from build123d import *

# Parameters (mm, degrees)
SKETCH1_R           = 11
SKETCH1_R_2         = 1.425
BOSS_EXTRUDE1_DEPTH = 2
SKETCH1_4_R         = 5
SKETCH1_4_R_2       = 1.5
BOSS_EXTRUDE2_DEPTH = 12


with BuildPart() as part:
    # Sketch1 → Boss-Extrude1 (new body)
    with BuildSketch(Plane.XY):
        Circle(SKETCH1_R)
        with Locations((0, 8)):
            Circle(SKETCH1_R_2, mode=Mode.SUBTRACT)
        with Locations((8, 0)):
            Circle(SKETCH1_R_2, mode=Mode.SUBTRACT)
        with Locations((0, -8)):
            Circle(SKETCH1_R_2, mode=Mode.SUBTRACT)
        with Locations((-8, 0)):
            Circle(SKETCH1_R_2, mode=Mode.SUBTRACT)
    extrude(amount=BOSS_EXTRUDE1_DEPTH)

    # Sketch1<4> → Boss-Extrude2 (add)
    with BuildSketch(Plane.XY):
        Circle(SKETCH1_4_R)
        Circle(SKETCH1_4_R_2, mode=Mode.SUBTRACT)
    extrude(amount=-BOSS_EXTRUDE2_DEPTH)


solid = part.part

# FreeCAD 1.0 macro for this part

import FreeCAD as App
import Part
import Sketcher

V = App.Vector

doc = App.newDocument("Part")
params = doc.addObject("Spreadsheet::Sheet", "Params")
for row, (alias, value) in enumerate([
    ("sketch1_diameter", "22 mm"),
    ("sketch1_diameter2", "2.85 mm"),
    ("pad1_length", "2 mm"),
    ("sketch2_diameter", "10 mm"),
    ("sketch2_diameter2", "3 mm"),
    ("pad2_length", "12 mm"),
], start=1):
    params.set(f"A{row}", alias)
    params.set(f"B{row}", "=" + value)
    params.setAlias(f"B{row}", alias)

body = doc.addObject("PartDesign::Body", "Body")

# Sketch on XY plane
sketch1 = doc.addObject("Sketcher::SketchObject", "Sketch")
body.addObject(sketch1)
sketch1.AttachmentSupport = (doc.XY_Plane, [""])
sketch1.MapMode = "FlatFace"
sketch1.addGeometry([
    Part.Circle(V(0, 0, 0), V(0, 0, 1), 11),  # 0
    Part.Circle(V(0, -8, 0), V(0, 0, 1), 1.4),  # 1
    Part.Circle(V(-8, 0, 0), V(0, 0, 1), 1.4),  # 2
    Part.Circle(V(8, 0, 0), V(0, 0, 1), 1.4),  # 3
    Part.Circle(V(0, 8, 0), V(0, 0, 1), 1.4),  # 4
], False)
sketch1.addConstraint([
    Sketcher.Constraint("Coincident", 0, 3, -1, 1),
    Sketcher.Constraint("Equal", 1, 2),
    Sketcher.Constraint("Equal", 2, 3),
    Sketcher.Constraint("Equal", 3, 4),
    Sketcher.Constraint("Symmetric", 2, 3, 3, 3, -1, 1),
    Sketcher.Constraint("Symmetric", 1, 3, 4, 3, -1, 1),
    Sketcher.Constraint("PointOnObject", 1, 3, -2),
    Sketcher.Constraint("PointOnObject", 2, 3, -1),
    Sketcher.Constraint("Diameter", 0, 22.0),
    Sketcher.Constraint("Diameter", 1, 2.85),
    Sketcher.Constraint("DistanceY", 1, 3, -1, 1, 8.0),
    Sketcher.Constraint("DistanceX", 2, 3, -1, 1, 8.0),
])
sketch1.setExpression("Constraints[8]", "Params.sketch1_diameter")
sketch1.setExpression("Constraints[9]", "Params.sketch1_diameter2")
pad1 = doc.addObject("PartDesign::Pad", "Pad")
body.addObject(pad1)
pad1.Profile = sketch1
pad1.setExpression("Length", "Params.pad1_length")

# Sketch on XY plane
sketch2 = doc.addObject("Sketcher::SketchObject", "Sketch001")
body.addObject(sketch2)
sketch2.AttachmentSupport = (doc.XY_Plane, [""])
sketch2.MapMode = "FlatFace"
sketch2.addGeometry([
    Part.Circle(V(0, 0, 0), V(0, 0, 1), 5),
    Part.Circle(V(0, 0, 0), V(0, 0, 1), 1.5),
], False)
sketch2.addConstraint([
    Sketcher.Constraint("Coincident", 0, 3, -1, 1),
    Sketcher.Constraint("Coincident", 1, 3, -1, 1),
    Sketcher.Constraint("Diameter", 0, 10.0),
    Sketcher.Constraint("Diameter", 1, 3.0),
])
sketch2.setExpression("Constraints[2]", "Params.sketch2_diameter")
sketch2.setExpression("Constraints[3]", "Params.sketch2_diameter2")
pad2 = doc.addObject("PartDesign::Pad", "Pad001")
body.addObject(pad2)
pad2.Profile = sketch2
pad2.setExpression("Length", "Params.pad2_length")
pad2.Reversed = True

doc.recompute()
